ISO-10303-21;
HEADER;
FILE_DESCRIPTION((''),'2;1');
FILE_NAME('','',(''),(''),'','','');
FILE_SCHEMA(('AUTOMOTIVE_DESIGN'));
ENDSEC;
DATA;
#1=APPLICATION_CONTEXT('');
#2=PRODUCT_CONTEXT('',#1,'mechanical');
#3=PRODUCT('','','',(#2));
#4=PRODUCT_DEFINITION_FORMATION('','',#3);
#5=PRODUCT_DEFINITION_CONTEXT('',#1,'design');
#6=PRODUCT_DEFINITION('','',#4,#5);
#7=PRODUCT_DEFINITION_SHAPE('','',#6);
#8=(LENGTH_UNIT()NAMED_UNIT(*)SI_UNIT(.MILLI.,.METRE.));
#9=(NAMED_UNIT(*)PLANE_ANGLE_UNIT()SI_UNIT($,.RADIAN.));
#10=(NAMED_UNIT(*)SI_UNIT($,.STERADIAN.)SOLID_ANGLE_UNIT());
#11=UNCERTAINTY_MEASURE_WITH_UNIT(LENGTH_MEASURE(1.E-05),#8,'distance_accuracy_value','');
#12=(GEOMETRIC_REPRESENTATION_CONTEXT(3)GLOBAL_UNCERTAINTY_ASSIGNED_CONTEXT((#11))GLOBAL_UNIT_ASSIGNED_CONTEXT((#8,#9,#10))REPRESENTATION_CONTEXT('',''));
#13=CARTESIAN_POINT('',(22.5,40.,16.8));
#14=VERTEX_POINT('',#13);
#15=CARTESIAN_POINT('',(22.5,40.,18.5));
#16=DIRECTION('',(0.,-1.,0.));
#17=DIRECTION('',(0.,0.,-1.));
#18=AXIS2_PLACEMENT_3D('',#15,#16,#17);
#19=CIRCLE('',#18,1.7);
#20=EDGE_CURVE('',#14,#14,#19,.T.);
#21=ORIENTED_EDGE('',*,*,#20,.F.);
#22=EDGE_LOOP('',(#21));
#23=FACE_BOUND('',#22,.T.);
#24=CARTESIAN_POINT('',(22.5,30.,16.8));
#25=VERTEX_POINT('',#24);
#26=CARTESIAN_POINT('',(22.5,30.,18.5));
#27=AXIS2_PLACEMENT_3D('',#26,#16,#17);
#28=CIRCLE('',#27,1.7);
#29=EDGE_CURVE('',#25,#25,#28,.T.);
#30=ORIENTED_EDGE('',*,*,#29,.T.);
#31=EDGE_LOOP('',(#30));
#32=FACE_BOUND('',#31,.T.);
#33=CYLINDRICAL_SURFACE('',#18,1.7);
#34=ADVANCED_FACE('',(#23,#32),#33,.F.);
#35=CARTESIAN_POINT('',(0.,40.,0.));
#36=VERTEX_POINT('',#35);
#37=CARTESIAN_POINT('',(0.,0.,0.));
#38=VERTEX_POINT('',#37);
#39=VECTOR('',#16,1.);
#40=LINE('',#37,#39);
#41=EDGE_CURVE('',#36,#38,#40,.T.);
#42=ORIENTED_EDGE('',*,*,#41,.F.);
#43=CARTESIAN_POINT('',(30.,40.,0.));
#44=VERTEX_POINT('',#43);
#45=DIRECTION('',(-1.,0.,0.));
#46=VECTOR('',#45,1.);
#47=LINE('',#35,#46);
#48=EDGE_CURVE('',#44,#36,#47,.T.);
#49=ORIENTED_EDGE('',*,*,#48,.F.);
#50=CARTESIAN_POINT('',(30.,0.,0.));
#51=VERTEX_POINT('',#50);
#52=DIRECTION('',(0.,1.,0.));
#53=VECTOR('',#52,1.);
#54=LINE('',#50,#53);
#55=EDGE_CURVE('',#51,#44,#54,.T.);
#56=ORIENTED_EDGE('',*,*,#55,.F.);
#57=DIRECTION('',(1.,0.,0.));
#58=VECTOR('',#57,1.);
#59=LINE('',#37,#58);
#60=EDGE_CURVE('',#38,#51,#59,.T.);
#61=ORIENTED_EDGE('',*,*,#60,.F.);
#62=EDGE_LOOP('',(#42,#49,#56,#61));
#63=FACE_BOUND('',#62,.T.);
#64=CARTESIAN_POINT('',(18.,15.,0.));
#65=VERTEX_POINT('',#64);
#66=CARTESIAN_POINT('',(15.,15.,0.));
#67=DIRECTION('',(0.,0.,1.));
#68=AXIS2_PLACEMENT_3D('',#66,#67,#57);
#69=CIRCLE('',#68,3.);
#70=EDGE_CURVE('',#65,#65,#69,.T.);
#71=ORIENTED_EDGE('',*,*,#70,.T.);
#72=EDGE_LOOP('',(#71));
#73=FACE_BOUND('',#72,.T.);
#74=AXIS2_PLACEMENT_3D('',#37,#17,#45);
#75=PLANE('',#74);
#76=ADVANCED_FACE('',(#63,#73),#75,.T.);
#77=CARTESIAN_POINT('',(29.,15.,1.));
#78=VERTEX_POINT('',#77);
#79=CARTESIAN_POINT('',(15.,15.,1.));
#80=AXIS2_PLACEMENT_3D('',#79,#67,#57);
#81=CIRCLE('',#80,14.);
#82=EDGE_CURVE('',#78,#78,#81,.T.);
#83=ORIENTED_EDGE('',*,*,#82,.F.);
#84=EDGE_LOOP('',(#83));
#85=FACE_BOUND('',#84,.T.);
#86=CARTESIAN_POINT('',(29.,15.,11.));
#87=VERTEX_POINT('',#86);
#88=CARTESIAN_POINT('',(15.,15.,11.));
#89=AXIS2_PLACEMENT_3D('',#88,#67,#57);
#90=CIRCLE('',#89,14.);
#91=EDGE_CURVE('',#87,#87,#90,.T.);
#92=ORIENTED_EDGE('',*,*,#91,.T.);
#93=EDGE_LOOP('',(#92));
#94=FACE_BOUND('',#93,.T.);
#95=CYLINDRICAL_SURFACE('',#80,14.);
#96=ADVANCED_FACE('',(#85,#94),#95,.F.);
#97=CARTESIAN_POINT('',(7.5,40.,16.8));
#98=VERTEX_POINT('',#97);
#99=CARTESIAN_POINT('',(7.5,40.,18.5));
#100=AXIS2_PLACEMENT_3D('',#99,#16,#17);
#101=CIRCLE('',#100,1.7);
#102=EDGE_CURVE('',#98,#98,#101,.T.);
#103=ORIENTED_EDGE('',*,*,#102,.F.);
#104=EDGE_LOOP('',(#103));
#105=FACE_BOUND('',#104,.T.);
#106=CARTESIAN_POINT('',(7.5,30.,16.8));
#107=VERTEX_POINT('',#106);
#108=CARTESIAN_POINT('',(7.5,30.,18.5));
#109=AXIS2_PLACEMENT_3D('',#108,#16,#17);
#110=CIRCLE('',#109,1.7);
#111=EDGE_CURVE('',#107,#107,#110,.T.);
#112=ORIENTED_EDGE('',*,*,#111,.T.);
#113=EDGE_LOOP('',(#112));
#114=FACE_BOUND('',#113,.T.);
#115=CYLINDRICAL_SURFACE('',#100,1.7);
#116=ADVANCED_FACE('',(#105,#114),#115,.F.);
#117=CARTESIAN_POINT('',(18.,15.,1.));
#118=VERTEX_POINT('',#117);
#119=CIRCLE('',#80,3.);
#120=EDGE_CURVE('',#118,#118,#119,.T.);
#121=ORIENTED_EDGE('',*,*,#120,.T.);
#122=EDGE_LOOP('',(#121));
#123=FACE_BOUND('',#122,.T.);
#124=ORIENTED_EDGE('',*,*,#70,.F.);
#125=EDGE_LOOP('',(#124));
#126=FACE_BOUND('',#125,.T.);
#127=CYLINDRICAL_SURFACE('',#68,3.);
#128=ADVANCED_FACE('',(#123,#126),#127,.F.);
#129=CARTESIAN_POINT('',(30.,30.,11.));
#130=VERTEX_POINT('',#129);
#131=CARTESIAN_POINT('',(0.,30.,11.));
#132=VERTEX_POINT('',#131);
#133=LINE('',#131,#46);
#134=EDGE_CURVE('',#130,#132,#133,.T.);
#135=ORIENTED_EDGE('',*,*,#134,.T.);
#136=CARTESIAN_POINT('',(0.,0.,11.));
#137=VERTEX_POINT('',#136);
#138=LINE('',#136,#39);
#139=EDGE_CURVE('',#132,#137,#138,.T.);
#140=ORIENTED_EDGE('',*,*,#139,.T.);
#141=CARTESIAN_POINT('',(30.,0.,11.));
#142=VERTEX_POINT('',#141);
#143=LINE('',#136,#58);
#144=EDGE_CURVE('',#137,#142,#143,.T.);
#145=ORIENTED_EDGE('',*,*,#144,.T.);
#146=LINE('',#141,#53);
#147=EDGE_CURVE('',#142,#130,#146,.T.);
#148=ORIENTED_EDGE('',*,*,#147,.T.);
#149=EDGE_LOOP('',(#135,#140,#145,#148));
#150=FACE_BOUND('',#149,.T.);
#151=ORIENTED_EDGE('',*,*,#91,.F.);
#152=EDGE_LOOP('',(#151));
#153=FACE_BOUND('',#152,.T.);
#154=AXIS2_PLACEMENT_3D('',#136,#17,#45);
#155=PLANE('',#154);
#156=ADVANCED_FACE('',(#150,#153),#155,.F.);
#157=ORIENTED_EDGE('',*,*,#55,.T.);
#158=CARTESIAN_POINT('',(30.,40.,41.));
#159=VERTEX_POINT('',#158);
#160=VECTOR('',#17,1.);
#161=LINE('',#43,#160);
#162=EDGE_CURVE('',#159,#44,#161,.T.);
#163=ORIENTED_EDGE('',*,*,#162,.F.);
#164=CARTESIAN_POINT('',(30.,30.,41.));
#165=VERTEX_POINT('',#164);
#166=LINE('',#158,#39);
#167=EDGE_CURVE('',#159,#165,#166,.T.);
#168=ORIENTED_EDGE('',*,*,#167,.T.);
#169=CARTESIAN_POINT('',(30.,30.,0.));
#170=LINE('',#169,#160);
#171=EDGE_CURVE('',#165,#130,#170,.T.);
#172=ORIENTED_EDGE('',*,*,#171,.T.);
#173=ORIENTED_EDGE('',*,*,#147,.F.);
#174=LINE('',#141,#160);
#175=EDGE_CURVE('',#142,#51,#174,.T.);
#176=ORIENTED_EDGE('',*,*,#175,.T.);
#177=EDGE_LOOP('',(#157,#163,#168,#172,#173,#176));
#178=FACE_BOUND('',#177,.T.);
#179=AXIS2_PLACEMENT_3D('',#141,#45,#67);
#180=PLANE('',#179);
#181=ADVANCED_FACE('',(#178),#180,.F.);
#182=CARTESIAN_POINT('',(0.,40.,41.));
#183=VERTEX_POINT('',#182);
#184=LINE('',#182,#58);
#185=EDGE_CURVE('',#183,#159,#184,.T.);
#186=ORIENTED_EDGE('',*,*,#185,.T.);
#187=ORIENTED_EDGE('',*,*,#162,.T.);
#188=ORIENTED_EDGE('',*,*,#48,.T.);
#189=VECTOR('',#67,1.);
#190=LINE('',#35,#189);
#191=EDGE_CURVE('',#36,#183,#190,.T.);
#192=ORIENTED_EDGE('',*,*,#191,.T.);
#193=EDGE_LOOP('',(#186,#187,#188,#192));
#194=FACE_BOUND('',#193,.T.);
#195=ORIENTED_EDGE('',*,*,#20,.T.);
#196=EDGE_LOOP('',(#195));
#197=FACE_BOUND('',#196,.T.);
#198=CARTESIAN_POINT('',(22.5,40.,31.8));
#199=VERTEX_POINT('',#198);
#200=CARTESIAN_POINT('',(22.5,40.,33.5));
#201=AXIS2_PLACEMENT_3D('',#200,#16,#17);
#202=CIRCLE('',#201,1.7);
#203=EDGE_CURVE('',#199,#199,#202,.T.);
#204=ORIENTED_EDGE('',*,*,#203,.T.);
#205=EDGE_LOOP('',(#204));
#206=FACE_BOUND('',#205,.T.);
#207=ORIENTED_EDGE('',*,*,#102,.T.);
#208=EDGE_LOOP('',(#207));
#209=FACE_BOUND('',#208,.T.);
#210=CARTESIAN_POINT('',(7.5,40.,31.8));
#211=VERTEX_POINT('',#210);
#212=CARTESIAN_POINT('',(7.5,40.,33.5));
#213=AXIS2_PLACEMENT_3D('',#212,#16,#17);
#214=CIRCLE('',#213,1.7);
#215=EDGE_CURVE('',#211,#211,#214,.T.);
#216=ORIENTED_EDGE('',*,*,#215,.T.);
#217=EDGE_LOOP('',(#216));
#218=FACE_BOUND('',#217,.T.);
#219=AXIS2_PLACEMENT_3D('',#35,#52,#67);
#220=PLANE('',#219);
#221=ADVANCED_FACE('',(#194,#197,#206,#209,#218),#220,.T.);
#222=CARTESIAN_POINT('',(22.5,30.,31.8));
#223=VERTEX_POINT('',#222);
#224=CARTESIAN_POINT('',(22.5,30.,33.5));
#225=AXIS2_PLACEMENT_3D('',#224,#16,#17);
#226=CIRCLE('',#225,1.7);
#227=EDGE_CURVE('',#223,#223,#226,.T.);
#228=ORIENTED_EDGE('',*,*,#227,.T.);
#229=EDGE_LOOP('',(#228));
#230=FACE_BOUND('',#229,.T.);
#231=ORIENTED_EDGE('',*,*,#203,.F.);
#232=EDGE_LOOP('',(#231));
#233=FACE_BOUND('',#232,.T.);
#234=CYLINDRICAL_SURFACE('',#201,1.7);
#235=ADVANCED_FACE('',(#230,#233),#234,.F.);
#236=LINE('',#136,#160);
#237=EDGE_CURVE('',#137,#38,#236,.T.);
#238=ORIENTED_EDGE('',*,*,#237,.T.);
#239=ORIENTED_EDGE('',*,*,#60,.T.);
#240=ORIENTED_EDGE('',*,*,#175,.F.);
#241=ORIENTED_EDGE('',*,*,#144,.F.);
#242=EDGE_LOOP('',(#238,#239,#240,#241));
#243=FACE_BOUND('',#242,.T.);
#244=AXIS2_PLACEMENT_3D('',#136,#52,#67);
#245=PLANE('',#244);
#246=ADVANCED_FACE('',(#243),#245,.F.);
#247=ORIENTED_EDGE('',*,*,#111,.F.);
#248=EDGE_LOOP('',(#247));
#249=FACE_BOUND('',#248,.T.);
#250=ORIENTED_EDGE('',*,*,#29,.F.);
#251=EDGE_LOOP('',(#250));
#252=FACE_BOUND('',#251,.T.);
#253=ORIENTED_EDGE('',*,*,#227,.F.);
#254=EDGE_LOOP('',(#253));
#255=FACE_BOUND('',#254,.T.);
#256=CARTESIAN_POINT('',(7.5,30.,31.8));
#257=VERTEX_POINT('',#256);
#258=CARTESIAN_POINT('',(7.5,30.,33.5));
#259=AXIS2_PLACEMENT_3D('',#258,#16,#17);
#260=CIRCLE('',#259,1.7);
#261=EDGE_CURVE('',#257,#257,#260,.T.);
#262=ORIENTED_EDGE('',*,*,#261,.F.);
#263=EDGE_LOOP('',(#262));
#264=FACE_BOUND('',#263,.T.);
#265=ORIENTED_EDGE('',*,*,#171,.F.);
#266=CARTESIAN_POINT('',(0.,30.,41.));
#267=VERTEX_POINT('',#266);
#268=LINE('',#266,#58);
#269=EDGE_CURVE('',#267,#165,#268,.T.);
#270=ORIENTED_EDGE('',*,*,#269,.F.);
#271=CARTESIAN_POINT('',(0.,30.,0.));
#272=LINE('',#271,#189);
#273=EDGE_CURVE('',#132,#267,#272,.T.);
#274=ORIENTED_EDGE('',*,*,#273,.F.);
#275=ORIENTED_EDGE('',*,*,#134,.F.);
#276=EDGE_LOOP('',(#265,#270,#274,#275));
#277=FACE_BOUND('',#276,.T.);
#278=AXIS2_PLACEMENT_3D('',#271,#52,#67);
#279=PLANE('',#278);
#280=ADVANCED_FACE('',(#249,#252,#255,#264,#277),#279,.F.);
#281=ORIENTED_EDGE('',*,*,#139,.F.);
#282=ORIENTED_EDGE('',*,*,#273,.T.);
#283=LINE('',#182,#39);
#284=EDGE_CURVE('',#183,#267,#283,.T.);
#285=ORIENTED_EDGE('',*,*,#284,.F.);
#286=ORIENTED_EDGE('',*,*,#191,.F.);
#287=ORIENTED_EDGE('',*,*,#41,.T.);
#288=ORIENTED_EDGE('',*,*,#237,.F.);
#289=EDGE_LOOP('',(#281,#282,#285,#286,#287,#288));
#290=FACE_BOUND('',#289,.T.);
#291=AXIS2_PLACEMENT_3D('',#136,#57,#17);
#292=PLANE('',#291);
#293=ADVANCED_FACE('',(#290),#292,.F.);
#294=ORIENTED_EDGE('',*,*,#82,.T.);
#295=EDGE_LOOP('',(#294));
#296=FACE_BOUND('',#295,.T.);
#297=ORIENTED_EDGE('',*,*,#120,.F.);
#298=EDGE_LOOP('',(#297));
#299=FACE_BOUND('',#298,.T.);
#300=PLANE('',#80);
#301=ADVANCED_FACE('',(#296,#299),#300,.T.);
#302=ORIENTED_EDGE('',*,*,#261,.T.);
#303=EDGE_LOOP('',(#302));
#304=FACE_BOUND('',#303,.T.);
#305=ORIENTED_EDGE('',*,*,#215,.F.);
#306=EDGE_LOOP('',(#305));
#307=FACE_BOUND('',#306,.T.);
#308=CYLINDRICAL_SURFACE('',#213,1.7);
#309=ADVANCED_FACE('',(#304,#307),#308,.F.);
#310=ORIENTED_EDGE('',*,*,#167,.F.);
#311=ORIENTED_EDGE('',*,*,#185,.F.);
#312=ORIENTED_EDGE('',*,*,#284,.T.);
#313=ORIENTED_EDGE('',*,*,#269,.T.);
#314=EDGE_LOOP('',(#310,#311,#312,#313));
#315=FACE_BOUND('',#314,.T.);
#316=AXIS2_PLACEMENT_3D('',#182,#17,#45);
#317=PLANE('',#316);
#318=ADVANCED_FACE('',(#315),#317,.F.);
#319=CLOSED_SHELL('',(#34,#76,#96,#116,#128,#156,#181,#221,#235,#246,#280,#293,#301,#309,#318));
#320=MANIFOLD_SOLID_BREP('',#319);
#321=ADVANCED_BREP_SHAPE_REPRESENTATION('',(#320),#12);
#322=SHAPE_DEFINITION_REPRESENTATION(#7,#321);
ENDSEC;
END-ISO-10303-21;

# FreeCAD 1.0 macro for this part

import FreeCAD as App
import Part
import Sketcher

V = App.Vector

doc = App.newDocument("Part")
params = doc.addObject("Spreadsheet::Sheet", "Params")
for row, (alias, value) in enumerate([
    ("sketch1_width", "30 mm"),
    ("pad1_length", "11 mm"),
    ("sketch2_diameter", "28 mm"),
    ("pocket1_length", "10 mm"),
    ("sketch3_diameter", "6 mm"),
    ("pocket2_length", "1 mm"),
    ("sketch4_width", "30 mm"),
    ("sketch4_height", "41 mm"),
    ("pad2_length", "10 mm"),
    ("sketch5_diameter", "3.4 mm"),
], start=1):
    params.set(f"A{row}", alias)
    params.set(f"B{row}", "=" + value)
    params.setAlias(f"B{row}", alias)

body = doc.addObject("PartDesign::Body", "Body")

sketch1 = body.newObject("Sketcher::SketchObject", "Sketch")
sketch1.AttachmentSupport = (doc.getObject("XY_Plane"), [""])
sketch1.MapMode = "FlatFace"
sketch1.addGeometry(Part.LineSegment(V(0, 30, 0), V(0, 0, 0)), False)
sketch1.addGeometry(Part.LineSegment(V(0, 0, 0), V(30, 0, 0)), False)
sketch1.addGeometry(Part.LineSegment(V(30, 0, 0), V(30, 30, 0)), False)
sketch1.addGeometry(Part.LineSegment(V(30, 30, 0), V(0, 30, 0)), False)
sketch1.addConstraint(Sketcher.Constraint("Coincident", 0, 2, 1, 1))
sketch1.addConstraint(Sketcher.Constraint("Coincident", 1, 2, 2, 1))
sketch1.addConstraint(Sketcher.Constraint("Coincident", 2, 2, 3, 1))
sketch1.addConstraint(Sketcher.Constraint("Coincident", 3, 2, 0, 1))
sketch1.addConstraint(Sketcher.Constraint("Vertical", 0))
sketch1.addConstraint(Sketcher.Constraint("Horizontal", 1))
sketch1.addConstraint(Sketcher.Constraint("Vertical", 2))
sketch1.addConstraint(Sketcher.Constraint("Horizontal", 3))
sketch1.addConstraint(Sketcher.Constraint("Coincident", 0, 2, -1, 1))
sketch1.addConstraint(Sketcher.Constraint("Equal", 3, 0))
sketch1.addConstraint(Sketcher.Constraint("DistanceX", 1, 1, 1, 2, 30.0))
sketch1.setExpression("Constraints[10]", "Params.sketch1_width")
pad1 = body.newObject("PartDesign::Pad", "Pad")
pad1.Profile = sketch1
pad1.setExpression("Length", "Params.pad1_length")

sketch2 = body.newObject("Sketcher::SketchObject", "Sketch001")
sketch2.AttachmentSupport = (doc.getObject("XY_Plane"), [""])
sketch2.MapMode = "FlatFace"
sketch2.AttachmentOffset = App.Placement(V(0, 0, 11), App.Rotation())
sketch2.addGeometry(Part.Circle(V(15, 15, 0), V(0, 0, 1), 14), False)
sketch2.addConstraint(Sketcher.Constraint("Diameter", 0, 28.0))
sketch2.addConstraint(Sketcher.Constraint("DistanceX", -1, 1, 0, 3, 15.0))
sketch2.addConstraint(Sketcher.Constraint("DistanceY", -1, 1, 0, 3, 15.0))
sketch2.setExpression("Constraints[0]", "Params.sketch2_diameter")
pocket1 = body.newObject("PartDesign::Pocket", "Pocket")
pocket1.Profile = sketch2
pocket1.setExpression("Length", "Params.pocket1_length")

sketch3 = body.newObject("Sketcher::SketchObject", "Sketch002")
sketch3.AttachmentSupport = (doc.getObject("XY_Plane"), [""])
sketch3.MapMode = "FlatFace"
sketch3.AttachmentOffset = App.Placement(V(0, 0, 1), App.Rotation())
sketch3.addGeometry(Part.Circle(V(15, 15, 0), V(0, 0, 1), 3), False)
sketch3.addConstraint(Sketcher.Constraint("Diameter", 0, 6.0))
sketch3.addConstraint(Sketcher.Constraint("DistanceX", -1, 1, 0, 3, 15.0))
sketch3.addConstraint(Sketcher.Constraint("DistanceY", -1, 1, 0, 3, 15.0))
sketch3.setExpression("Constraints[0]", "Params.sketch3_diameter")
pocket2 = body.newObject("PartDesign::Pocket", "Pocket001")
pocket2.Profile = sketch3
pocket2.setExpression("Length", "Params.pocket2_length")

sketch4 = body.newObject("Sketcher::SketchObject", "Sketch003")
sketch4.AttachmentSupport = (doc.getObject("XZ_Plane"), [""])
sketch4.MapMode = "FlatFace"
sketch4.AttachmentOffset = App.Placement(V(0, 0, -30), App.Rotation())
sketch4.addGeometry(Part.LineSegment(V(0, 0, 0), V(0, 41, 0)), False)
sketch4.addGeometry(Part.LineSegment(V(0, 41, 0), V(30, 41, 0)), False)
sketch4.addGeometry(Part.LineSegment(V(30, 41, 0), V(30, 0, 0)), False)
sketch4.addGeometry(Part.LineSegment(V(30, 0, 0), V(0, 0, 0)), False)
sketch4.addConstraint(Sketcher.Constraint("Coincident", 0, 2, 1, 1))
sketch4.addConstraint(Sketcher.Constraint("Coincident", 1, 2, 2, 1))
sketch4.addConstraint(Sketcher.Constraint("Coincident", 2, 2, 3, 1))
sketch4.addConstraint(Sketcher.Constraint("Coincident", 3, 2, 0, 1))
sketch4.addConstraint(Sketcher.Constraint("Vertical", 0))
sketch4.addConstraint(Sketcher.Constraint("Horizontal", 1))
sketch4.addConstraint(Sketcher.Constraint("Vertical", 2))
sketch4.addConstraint(Sketcher.Constraint("Horizontal", 3))
sketch4.addConstraint(Sketcher.Constraint("Coincident", 3, 2, -1, 1))
sketch4.addConstraint(Sketcher.Constraint("DistanceX", 1, 1, 1, 2, 30.0))
sketch4.addConstraint(Sketcher.Constraint("DistanceY", 0, 1, 0, 2, 41.0))
sketch4.setExpression("Constraints[9]", "Params.sketch4_width")
sketch4.setExpression("Constraints[10]", "Params.sketch4_height")
pad2 = body.newObject("PartDesign::Pad", "Pad001")
pad2.Profile = sketch4
pad2.setExpression("Length", "Params.pad2_length")
pad2.Reversed = True

sketch5 = body.newObject("Sketcher::SketchObject", "Sketch004")
sketch5.AttachmentSupport = (doc.getObject("XZ_Plane"), [""])
sketch5.MapMode = "FlatFace"
sketch5.AttachmentOffset = App.Placement(V(0, 0, -30), App.Rotation())
sketch5.addGeometry(Part.Circle(V(7.5, 33.5, 0), V(0, 0, 1), 1.7), False)
sketch5.addGeometry(Part.Circle(V(22.5, 33.5, 0), V(0, 0, 1), 1.7), False)
sketch5.addGeometry(Part.Circle(V(7.5, 18.5, 0), V(0, 0, 1), 1.7), False)
sketch5.addGeometry(Part.Circle(V(22.5, 18.5, 0), V(0, 0, 1), 1.7), False)
sketch5.addConstraint(Sketcher.Constraint("Equal", 0, 1))
sketch5.addConstraint(Sketcher.Constraint("Equal", 1, 2))
sketch5.addConstraint(Sketcher.Constraint("Equal", 2, 3))
sketch5.addConstraint(Sketcher.Constraint("Horizontal", 0, 3, 1, 3))
sketch5.addConstraint(Sketcher.Constraint("Horizontal", 2, 3, 3, 3))
sketch5.addConstraint(Sketcher.Constraint("Vertical", 0, 3, 2, 3))
sketch5.addConstraint(Sketcher.Constraint("Vertical", 1, 3, 3, 3))
sketch5.addConstraint(Sketcher.Constraint("Diameter", 0, 3.4))
sketch5.addConstraint(Sketcher.Constraint("DistanceX", 0, 3, 1, 3, 15.0))
sketch5.addConstraint(Sketcher.Constraint("DistanceY", 2, 3, 0, 3, 15.0))
sketch5.addConstraint(Sketcher.Constraint("DistanceX", -1, 1, 0, 3, 7.5))
sketch5.addConstraint(Sketcher.Constraint("DistanceY", -1, 1, 0, 3, 33.5))
sketch5.setExpression("Constraints[7]", "Params.sketch5_diameter")
pocket3 = body.newObject("PartDesign::Pocket", "Pocket002")
pocket3.Profile = sketch5
pocket3.Type = "ThroughAll"

doc.recompute()
